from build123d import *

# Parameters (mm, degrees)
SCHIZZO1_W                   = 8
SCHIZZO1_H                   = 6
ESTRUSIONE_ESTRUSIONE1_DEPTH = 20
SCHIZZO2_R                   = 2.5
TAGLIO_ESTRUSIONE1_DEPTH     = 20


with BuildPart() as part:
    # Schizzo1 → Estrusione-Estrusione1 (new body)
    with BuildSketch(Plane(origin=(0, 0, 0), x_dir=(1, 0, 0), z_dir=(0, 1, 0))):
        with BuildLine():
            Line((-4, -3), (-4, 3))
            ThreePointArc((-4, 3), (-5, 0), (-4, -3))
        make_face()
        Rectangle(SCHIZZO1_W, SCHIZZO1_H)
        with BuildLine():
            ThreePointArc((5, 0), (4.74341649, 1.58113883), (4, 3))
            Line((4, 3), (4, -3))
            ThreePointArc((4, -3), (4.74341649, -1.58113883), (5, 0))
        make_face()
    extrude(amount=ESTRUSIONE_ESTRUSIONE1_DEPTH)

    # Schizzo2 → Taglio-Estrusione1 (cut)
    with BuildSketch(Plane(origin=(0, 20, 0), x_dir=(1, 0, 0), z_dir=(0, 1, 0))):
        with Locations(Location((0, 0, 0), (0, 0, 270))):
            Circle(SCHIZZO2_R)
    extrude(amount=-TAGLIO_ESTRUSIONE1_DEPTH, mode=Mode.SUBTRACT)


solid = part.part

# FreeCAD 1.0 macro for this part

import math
import FreeCAD as App
import Part
import Sketcher

V = App.Vector

doc = App.newDocument("Part")
params = doc.addObject("Spreadsheet::Sheet", "Params")
for row, (alias, value) in enumerate([
    ("sketch1_radius", "5 mm"),
    ("sketch1_width", "8 mm"),
    ("pad1_length", "20 mm"),
    ("sketch2_diameter", "5 mm"),
    ("pocket1_length", "20 mm"),
], start=1):
    params.set(f"A{row}", alias)
    params.set(f"B{row}", "=" + value)
    params.setAlias(f"B{row}", alias)

body = doc.addObject("PartDesign::Body", "Body")

sketch1 = body.newObject("Sketcher::SketchObject", "Sketch")
sketch1.AttachmentSupport = (doc.getObject("XZ_Plane"), [""])
sketch1.MapMode = "FlatFace"
sketch1.addGeometry([
    Part.ArcOfCircle(Part.Circle(V(0, 0, 0), V(0, 0, 1), 5), math.radians(143), math.radians(217)),
    Part.LineSegment(V(-4, 3, 0), V(4, 3, 0)),
    Part.ArcOfCircle(Part.Circle(V(0, 0, 0), V(0, 0, 1), 5), math.radians(0), math.radians(37)),
    Part.ArcOfCircle(Part.Circle(V(0, 0, 0), V(0, 0, 1), 5), math.radians(-37), math.radians(0)),
    Part.LineSegment(V(4, -3, 0), V(-4, -3, 0)),
], False)
sketch1.addConstraint([
    Sketcher.Constraint("Coincident", 0, 1, 1, 1),
    Sketcher.Constraint("Coincident", 1, 2, 2, 2),
    Sketcher.Constraint("Tangent", 2, 1, 3, 2),
    Sketcher.Constraint("Coincident", 3, 1, 4, 1),
    Sketcher.Constraint("Coincident", 4, 2, 0, 2),
    Sketcher.Constraint("Horizontal", 1),
    Sketcher.Constraint("Horizontal", 4),
    Sketcher.Constraint("Coincident", 0, 3, -1, 1),
    Sketcher.Constraint("Coincident", 2, 3, -1, 1),
    Sketcher.Constraint("Equal", 0, 2),
    Sketcher.Constraint("Equal", 2, 3),
    Sketcher.Constraint("PointOnObject", 2, 1, -1),
    Sketcher.Constraint("Vertical", 1, 2, 3, 1),
    Sketcher.Constraint("Radius", 0, 5.0),
    Sketcher.Constraint("DistanceX", 1, 1, 1, 2, 8.0),
])
sketch1.setExpression("Constraints[13]", "Params.sketch1_radius")
sketch1.setExpression("Constraints[14]", "Params.sketch1_width")
pad1 = body.newObject("PartDesign::Pad", "Pad")
pad1.Profile = sketch1
pad1.setExpression("Length", "Params.pad1_length")
pad1.Reversed = True

sketch2 = body.newObject("Sketcher::SketchObject", "Sketch001")
sketch2.AttachmentSupport = (doc.getObject("XZ_Plane"), [""])
sketch2.MapMode = "FlatFace"
sketch2.AttachmentOffset = App.Placement(V(0, 0, -20), App.Rotation())
sketch2.addGeometry(Part.Circle(V(0, 0, 0), V(0, 0, 1), 2.5), False)
sketch2.addConstraint([
    Sketcher.Constraint("Coincident", 0, 3, -1, 1),
    Sketcher.Constraint("Diameter", 0, 5.0),
])
sketch2.setExpression("Constraints[1]", "Params.sketch2_diameter")
pocket1 = body.newObject("PartDesign::Pocket", "Pocket")
pocket1.Profile = sketch2
pocket1.setExpression("Length", "Params.pocket1_length")
pocket1.Reversed = True

doc.recompute()
